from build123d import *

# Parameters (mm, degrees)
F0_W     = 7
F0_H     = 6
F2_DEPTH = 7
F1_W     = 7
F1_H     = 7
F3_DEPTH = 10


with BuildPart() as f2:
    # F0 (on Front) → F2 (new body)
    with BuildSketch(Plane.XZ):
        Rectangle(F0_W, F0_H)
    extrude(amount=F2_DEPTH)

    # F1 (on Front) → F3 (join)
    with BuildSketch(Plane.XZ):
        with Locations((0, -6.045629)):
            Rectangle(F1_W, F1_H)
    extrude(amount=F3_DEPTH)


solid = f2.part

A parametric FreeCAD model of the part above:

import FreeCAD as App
import Part
import Sketcher
from FreeCAD import Vector


def add_polygon(sketch, points):
    """Adds a closed chain of lines whose ends are joined by coincident constraints."""
    first, n = sketch.GeometryCount, len(points)
    for a, b in zip(points, points[1:] + points[:1]):
        sketch.addGeometry(Part.LineSegment(App.Vector(*a, 0), App.Vector(*b, 0)), False)
    for i in range(n):
        sketch.addConstraint(Sketcher.Constraint("Coincident", first + i, 2, first + (i + 1) % n, 1))

doc = App.newDocument("Part")
params = doc.addObject("Spreadsheet::Sheet", "Params")
for row, (alias, value) in enumerate([
    ("sketch1_width", "7 mm"),
    ("sketch1_height", "6 mm"),
    ("pad1_length", "7 mm"),
    ("sketch2_width", "7 mm"),
    ("pad2_length", "10 mm"),
], start=1):
    params.set(f"A{row}", alias)
    params.set(f"B{row}", "=" + value)
    params.setAlias(f"B{row}", alias)

body = doc.addObject("PartDesign::Body", "Body")

# Sketch on XZ plane
sketch1 = body.newObject("Sketcher::SketchObject", "Sketch")
sketch1.AttachmentSupport = (doc.getObject("XZ_Plane"), [""])
sketch1.MapMode = "FlatFace"
add_polygon(sketch1, [(-3.5, 3), (-3.5, -3), (3.5, -3), (3.5, 3)])  # lines 0-3
sketch1.addConstraint([
    Sketcher.Constraint("Vertical", 0),
    Sketcher.Constraint("Horizontal", 1),
    Sketcher.Constraint("Vertical", 2),
    Sketcher.Constraint("Horizontal", 3),
    Sketcher.Constraint("Symmetric", 0, 2, 2, 2, -1, 1),
    Sketcher.Constraint("DistanceX", 1, 1, 1, 2, 7.0),
    Sketcher.Constraint("DistanceY", 0, 2, 0, 1, 6.0),
])
sketch1.setExpression("Constraints[9]", "Params.sketch1_width")
sketch1.setExpression("Constraints[10]", "Params.sketch1_height")
pad1 = body.newObject("PartDesign::Pad", "Pad")
pad1.Profile = sketch1
pad1.setExpression("Length", "Params.pad1_length")

# Sketch on XZ plane
sketch2 = body.newObject("Sketcher::SketchObject", "Sketch001")
sketch2.AttachmentSupport = (doc.getObject("XZ_Plane"), [""])
sketch2.MapMode = "FlatFace"
add_polygon(sketch2, [(-3.5, -2.545629), (-3.5, -9.545629), (3.5, -9.545629), (3.5, -2.545629)])  # lines 0-3
sketch2.addConstraint([
    Sketcher.Constraint("Vertical", 0),
    Sketcher.Constraint("Horizontal", 1),
    Sketcher.Constraint("Vertical", 2),
    Sketcher.Constraint("Horizontal", 3),
    Sketcher.Constraint("Equal", 3, 0),
    Sketcher.Constraint("DistanceX", 1, 1, 1, 2, 7.0),
    Sketcher.Constraint("DistanceX", 0, 2, -1, 1, 3.5),
    Sketcher.Constraint("DistanceY", 0, 2, -1, 1, 9.545629),
])
sketch2.setExpression("Constraints[9]", "Params.sketch2_width")
pad2 = body.newObject("PartDesign::Pad", "Pad001")
pad2.Profile = sketch2
pad2.setExpression("Length", "Params.pad2_length")

doc.recompute()
